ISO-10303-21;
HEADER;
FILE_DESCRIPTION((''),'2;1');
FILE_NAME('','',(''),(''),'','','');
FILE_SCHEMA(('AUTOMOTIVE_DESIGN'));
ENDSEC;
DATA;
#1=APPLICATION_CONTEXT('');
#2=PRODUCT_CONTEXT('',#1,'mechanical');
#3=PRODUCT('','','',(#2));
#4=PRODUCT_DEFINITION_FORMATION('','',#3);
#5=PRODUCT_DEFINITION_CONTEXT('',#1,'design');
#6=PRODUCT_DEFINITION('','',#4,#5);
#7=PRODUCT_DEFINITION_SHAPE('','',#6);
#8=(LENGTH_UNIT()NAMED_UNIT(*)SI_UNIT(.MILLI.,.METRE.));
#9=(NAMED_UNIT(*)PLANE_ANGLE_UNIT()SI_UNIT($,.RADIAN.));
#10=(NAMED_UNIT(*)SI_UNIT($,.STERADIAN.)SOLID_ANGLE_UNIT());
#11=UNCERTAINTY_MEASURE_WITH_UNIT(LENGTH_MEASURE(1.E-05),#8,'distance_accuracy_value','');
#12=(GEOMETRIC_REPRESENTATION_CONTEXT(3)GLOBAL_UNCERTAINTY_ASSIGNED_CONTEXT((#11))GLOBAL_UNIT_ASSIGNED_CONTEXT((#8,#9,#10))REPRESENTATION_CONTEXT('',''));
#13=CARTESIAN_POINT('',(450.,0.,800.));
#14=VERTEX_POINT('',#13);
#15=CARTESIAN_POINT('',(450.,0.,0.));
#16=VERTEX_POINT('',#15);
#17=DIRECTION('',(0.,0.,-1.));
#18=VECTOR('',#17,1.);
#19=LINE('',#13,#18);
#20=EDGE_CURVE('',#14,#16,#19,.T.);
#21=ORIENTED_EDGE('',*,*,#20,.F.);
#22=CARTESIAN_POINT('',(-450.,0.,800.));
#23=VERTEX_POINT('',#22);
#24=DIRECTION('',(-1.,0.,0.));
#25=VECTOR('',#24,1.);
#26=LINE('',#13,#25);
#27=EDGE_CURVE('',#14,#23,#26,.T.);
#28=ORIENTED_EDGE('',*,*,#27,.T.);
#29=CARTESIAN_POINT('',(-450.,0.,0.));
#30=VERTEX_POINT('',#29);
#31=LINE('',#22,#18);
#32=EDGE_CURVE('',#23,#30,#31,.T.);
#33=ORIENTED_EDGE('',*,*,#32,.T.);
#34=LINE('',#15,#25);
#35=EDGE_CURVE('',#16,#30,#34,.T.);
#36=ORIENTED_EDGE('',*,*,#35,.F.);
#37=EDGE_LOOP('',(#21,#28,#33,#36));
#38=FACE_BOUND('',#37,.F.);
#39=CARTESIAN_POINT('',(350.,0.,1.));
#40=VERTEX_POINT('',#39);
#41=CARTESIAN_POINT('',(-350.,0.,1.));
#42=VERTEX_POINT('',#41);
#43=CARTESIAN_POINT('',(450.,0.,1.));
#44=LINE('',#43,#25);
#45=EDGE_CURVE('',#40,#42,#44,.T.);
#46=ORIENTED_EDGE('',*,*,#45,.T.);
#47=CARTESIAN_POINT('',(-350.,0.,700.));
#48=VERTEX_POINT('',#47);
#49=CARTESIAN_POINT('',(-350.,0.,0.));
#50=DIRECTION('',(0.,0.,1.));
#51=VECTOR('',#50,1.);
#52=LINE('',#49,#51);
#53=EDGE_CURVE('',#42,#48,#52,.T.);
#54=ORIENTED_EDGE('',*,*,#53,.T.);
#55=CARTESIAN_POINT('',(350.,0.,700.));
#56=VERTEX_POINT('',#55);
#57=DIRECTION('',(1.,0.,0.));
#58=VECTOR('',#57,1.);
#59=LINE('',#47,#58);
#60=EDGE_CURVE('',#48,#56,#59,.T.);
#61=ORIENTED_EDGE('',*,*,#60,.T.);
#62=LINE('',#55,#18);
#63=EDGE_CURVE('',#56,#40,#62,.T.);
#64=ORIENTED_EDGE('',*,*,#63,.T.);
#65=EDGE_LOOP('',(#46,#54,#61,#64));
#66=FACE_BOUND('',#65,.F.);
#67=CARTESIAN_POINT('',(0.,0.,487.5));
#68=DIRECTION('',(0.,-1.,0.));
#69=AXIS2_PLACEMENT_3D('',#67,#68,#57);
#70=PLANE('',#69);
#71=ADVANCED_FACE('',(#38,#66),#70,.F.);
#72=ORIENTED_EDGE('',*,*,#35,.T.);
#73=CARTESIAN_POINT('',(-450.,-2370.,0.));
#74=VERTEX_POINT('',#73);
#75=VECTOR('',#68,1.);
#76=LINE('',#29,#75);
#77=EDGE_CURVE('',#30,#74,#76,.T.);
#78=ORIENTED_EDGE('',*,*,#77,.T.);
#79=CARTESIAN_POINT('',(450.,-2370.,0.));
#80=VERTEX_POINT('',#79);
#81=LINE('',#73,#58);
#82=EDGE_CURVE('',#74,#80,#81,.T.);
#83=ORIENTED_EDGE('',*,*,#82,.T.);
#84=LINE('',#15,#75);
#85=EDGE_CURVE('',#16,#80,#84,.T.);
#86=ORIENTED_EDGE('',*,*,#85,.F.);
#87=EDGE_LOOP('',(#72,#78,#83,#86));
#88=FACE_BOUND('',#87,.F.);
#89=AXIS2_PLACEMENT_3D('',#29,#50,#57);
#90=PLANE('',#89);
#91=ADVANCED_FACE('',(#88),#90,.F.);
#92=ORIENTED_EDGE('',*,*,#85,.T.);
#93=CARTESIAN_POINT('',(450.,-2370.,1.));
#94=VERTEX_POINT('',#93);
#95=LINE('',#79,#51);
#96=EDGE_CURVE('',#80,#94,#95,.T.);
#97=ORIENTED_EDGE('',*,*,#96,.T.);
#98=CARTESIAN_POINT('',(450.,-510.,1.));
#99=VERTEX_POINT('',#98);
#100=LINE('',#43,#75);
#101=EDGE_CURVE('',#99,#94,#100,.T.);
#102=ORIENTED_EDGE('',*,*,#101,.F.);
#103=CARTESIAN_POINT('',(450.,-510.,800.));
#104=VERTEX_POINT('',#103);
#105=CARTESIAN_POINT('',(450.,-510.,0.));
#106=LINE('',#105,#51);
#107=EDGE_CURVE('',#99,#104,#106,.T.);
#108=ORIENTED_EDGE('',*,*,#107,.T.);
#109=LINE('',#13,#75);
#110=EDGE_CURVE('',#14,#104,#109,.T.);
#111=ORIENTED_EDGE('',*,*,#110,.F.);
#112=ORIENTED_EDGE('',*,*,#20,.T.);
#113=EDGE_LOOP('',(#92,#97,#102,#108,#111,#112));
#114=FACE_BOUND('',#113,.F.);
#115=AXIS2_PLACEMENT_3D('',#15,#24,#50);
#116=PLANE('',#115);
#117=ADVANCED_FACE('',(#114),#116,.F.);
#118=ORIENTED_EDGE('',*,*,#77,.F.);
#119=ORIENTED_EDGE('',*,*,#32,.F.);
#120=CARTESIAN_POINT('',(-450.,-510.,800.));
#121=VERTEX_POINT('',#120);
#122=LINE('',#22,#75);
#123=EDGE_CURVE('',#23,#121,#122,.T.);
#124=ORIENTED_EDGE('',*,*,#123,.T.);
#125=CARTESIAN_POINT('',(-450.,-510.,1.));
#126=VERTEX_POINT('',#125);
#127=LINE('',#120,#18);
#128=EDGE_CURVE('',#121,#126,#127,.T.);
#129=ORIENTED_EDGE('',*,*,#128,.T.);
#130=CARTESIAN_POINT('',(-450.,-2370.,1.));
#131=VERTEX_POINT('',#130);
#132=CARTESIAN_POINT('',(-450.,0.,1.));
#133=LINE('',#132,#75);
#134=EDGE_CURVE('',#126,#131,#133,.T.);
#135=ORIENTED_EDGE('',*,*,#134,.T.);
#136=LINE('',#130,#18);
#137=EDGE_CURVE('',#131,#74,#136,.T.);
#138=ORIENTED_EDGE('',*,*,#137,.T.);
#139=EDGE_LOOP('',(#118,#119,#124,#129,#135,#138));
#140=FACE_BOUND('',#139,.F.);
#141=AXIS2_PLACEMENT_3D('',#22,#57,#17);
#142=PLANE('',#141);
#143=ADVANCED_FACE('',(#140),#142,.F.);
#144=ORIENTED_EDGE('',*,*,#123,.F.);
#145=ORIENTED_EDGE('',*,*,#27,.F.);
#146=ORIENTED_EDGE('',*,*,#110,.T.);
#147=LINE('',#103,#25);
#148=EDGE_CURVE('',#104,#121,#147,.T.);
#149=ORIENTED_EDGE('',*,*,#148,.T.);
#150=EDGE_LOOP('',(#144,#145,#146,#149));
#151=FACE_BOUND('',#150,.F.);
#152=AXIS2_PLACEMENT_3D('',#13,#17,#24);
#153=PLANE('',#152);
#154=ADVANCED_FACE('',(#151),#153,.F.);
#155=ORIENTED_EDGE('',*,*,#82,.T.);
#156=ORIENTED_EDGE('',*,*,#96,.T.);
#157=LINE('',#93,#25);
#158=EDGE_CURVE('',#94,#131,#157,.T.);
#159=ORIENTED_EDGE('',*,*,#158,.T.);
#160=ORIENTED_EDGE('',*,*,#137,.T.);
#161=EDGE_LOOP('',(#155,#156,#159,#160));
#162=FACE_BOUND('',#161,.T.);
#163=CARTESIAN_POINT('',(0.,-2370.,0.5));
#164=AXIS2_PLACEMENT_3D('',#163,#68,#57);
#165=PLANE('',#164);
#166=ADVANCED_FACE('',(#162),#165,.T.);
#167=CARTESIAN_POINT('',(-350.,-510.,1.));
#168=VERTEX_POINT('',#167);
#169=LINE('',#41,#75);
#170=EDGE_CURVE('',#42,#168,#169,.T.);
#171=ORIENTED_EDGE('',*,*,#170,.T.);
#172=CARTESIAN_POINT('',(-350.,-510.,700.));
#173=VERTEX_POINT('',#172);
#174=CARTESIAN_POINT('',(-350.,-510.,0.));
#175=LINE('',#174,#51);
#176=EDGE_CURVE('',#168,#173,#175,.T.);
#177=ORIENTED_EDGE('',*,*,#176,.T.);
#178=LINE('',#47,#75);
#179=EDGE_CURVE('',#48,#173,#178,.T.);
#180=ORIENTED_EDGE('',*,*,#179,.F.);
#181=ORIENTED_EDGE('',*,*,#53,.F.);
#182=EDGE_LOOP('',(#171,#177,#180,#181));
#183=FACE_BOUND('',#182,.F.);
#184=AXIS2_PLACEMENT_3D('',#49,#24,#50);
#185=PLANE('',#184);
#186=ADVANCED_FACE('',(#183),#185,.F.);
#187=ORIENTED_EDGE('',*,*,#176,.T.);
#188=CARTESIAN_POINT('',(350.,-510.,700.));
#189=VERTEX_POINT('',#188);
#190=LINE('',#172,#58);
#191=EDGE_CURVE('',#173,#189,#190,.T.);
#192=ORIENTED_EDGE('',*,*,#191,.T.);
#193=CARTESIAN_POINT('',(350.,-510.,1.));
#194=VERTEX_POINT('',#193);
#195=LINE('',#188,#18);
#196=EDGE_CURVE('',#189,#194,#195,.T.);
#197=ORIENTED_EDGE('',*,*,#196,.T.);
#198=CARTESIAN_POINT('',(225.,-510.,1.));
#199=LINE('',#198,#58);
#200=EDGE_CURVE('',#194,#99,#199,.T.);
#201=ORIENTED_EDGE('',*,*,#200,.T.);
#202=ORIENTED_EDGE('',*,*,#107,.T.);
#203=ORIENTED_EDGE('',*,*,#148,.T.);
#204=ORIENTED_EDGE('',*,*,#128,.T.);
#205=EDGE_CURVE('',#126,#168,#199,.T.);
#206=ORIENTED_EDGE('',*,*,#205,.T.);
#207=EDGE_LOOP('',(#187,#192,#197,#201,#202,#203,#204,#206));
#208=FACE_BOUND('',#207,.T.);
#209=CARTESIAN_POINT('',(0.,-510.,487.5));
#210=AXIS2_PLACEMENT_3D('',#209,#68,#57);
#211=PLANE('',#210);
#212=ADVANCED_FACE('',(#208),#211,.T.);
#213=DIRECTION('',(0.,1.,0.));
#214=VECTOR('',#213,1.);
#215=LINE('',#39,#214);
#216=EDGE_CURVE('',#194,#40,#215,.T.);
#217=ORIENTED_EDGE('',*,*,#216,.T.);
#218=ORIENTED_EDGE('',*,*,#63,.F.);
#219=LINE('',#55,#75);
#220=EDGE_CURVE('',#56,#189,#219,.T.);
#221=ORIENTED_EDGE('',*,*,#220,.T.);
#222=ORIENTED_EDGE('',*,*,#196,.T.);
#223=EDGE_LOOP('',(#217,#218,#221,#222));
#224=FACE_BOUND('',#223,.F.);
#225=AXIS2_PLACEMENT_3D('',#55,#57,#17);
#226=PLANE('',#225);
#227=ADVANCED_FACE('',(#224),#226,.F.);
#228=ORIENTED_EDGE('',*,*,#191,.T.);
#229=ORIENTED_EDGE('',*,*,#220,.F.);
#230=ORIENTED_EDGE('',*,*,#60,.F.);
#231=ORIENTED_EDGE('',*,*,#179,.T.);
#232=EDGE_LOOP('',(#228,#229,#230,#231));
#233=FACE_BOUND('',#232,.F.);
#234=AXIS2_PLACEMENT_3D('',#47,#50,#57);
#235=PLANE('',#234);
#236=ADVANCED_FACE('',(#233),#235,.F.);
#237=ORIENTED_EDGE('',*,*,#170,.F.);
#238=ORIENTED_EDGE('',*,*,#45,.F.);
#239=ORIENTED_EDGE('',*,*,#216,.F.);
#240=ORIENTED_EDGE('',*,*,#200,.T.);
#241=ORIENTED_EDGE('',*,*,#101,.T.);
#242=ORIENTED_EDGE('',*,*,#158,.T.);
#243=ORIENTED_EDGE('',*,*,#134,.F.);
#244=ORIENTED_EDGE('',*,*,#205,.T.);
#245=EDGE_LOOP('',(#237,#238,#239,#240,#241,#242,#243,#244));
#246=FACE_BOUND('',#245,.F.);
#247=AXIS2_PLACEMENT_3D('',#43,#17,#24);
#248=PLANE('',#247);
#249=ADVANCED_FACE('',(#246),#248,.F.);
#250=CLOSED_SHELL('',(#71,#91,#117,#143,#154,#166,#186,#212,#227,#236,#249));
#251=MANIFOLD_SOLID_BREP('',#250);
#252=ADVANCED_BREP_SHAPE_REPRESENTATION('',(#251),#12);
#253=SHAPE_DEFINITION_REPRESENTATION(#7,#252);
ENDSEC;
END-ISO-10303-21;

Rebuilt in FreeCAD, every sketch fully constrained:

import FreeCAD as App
import Part
import Sketcher
from FreeCAD import Vector
Q = App.Units.Quantity

doc = App.newDocument("Part")
body = doc.addObject("PartDesign::Body", "Body")

sketch1 = body.newObject("Sketcher::SketchObject", "Sketch")
sketch1.AttachmentSupport = (doc.getObject("XZ_Plane"), [""])
sketch1.MapMode = "FlatFace"
sketch1.addGeometry([
    Part.LineSegment(Vector(450, 800, 0), Vector(-450, 800, 0)),
    Part.LineSegment(Vector(-450, 800, 0), Vector(-450, 0, 0)),
    Part.LineSegment(Vector(-450, 0, 0), Vector(-350, 0, 0)),
    Part.LineSegment(Vector(-350, 0, 0), Vector(-350, 700, 0)),
    Part.LineSegment(Vector(-350, 700, 0), Vector(350, 700, 0)),
    Part.LineSegment(Vector(350, 700, 0), Vector(350, 0, 0)),
    Part.LineSegment(Vector(350, 0, 0), Vector(450, 0, 0)),
    Part.LineSegment(Vector(450, 0, 0), Vector(450, 800, 0)),
], False)
sketch1.addConstraint([
    Sketcher.Constraint("Coincident", 0, 2, 1, 1),
    Sketcher.Constraint("Coincident", 1, 2, 2, 1),
    Sketcher.Constraint("Coincident", 2, 2, 3, 1),
    Sketcher.Constraint("Coincident", 3, 2, 4, 1),
    Sketcher.Constraint("Coincident", 4, 2, 5, 1),
    Sketcher.Constraint("Coincident", 5, 2, 6, 1),
    Sketcher.Constraint("Coincident", 6, 2, 7, 1),
    Sketcher.Constraint("Coincident", 7, 2, 0, 1),
    Sketcher.Constraint("Horizontal", 0),
    Sketcher.Constraint("Vertical", 1),
    Sketcher.Constraint("Horizontal", 2),
    Sketcher.Constraint("Vertical", 3),
    Sketcher.Constraint("Horizontal", 4),
    Sketcher.Constraint("Vertical", 5),
    Sketcher.Constraint("Horizontal", 6),
    Sketcher.Constraint("Vertical", 7),
    Sketcher.Constraint("Symmetric", 2, 2, 5, 2, -1, 1),
    Sketcher.Constraint("Symmetric", 1, 2, 6, 2, -2),
    Sketcher.Constraint("Equal", 4, 3),
    Sketcher.Constraint("DistanceX", 0, 2, 0, 1, Q("900 mm")),
    Sketcher.Constraint("DistanceX", 2, 1, 2, 2, Q("100 mm")),
    Sketcher.Constraint("DistanceY", 1, 2, 1, 1, Q("800 mm")),
])
pad1 = body.newObject("PartDesign::Pad", "Pad")
pad1.Profile = sketch1
pad1.Length = 510

sketch2 = body.newObject("Sketcher::SketchObject", "Sketch001")
sketch2.AttachmentSupport = (doc.getObject("XZ_Plane"), [""])
sketch2.MapMode = "FlatFace"
sketch2.addGeometry([
    Part.LineSegment(Vector(-450, 0, 0), Vector(450, 0, 0)),
    Part.LineSegment(Vector(450, 0, 0), Vector(450, 1, 0)),
    Part.LineSegment(Vector(450, 1, 0), Vector(-450, 1, 0)),
    Part.LineSegment(Vector(-450, 1, 0), Vector(-450, 0, 0)),
], False)
sketch2.addConstraint([
    Sketcher.Constraint("Coincident", 0, 2, 1, 1),
    Sketcher.Constraint("Coincident", 1, 2, 2, 1),
    Sketcher.Constraint("Coincident", 2, 2, 3, 1),
    Sketcher.Constraint("Coincident", 3, 2, 0, 1),
    Sketcher.Constraint("Horizontal", 0),
    Sketcher.Constraint("Vertical", 1),
    Sketcher.Constraint("Horizontal", 2),
    Sketcher.Constraint("Vertical", 3),
    Sketcher.Constraint("Symmetric", 0, 2, 3, 2, -1, 1),
    Sketcher.Constraint("DistanceX", 0, 1, 0, 2, Q("900 mm")),
    Sketcher.Constraint("DistanceY", 1, 1, 1, 2, Q("1 mm")),
])
pad2 = body.newObject("PartDesign::Pad", "Pad001")
pad2.Profile = sketch2
pad2.Length = 2370

doc.recompute()
